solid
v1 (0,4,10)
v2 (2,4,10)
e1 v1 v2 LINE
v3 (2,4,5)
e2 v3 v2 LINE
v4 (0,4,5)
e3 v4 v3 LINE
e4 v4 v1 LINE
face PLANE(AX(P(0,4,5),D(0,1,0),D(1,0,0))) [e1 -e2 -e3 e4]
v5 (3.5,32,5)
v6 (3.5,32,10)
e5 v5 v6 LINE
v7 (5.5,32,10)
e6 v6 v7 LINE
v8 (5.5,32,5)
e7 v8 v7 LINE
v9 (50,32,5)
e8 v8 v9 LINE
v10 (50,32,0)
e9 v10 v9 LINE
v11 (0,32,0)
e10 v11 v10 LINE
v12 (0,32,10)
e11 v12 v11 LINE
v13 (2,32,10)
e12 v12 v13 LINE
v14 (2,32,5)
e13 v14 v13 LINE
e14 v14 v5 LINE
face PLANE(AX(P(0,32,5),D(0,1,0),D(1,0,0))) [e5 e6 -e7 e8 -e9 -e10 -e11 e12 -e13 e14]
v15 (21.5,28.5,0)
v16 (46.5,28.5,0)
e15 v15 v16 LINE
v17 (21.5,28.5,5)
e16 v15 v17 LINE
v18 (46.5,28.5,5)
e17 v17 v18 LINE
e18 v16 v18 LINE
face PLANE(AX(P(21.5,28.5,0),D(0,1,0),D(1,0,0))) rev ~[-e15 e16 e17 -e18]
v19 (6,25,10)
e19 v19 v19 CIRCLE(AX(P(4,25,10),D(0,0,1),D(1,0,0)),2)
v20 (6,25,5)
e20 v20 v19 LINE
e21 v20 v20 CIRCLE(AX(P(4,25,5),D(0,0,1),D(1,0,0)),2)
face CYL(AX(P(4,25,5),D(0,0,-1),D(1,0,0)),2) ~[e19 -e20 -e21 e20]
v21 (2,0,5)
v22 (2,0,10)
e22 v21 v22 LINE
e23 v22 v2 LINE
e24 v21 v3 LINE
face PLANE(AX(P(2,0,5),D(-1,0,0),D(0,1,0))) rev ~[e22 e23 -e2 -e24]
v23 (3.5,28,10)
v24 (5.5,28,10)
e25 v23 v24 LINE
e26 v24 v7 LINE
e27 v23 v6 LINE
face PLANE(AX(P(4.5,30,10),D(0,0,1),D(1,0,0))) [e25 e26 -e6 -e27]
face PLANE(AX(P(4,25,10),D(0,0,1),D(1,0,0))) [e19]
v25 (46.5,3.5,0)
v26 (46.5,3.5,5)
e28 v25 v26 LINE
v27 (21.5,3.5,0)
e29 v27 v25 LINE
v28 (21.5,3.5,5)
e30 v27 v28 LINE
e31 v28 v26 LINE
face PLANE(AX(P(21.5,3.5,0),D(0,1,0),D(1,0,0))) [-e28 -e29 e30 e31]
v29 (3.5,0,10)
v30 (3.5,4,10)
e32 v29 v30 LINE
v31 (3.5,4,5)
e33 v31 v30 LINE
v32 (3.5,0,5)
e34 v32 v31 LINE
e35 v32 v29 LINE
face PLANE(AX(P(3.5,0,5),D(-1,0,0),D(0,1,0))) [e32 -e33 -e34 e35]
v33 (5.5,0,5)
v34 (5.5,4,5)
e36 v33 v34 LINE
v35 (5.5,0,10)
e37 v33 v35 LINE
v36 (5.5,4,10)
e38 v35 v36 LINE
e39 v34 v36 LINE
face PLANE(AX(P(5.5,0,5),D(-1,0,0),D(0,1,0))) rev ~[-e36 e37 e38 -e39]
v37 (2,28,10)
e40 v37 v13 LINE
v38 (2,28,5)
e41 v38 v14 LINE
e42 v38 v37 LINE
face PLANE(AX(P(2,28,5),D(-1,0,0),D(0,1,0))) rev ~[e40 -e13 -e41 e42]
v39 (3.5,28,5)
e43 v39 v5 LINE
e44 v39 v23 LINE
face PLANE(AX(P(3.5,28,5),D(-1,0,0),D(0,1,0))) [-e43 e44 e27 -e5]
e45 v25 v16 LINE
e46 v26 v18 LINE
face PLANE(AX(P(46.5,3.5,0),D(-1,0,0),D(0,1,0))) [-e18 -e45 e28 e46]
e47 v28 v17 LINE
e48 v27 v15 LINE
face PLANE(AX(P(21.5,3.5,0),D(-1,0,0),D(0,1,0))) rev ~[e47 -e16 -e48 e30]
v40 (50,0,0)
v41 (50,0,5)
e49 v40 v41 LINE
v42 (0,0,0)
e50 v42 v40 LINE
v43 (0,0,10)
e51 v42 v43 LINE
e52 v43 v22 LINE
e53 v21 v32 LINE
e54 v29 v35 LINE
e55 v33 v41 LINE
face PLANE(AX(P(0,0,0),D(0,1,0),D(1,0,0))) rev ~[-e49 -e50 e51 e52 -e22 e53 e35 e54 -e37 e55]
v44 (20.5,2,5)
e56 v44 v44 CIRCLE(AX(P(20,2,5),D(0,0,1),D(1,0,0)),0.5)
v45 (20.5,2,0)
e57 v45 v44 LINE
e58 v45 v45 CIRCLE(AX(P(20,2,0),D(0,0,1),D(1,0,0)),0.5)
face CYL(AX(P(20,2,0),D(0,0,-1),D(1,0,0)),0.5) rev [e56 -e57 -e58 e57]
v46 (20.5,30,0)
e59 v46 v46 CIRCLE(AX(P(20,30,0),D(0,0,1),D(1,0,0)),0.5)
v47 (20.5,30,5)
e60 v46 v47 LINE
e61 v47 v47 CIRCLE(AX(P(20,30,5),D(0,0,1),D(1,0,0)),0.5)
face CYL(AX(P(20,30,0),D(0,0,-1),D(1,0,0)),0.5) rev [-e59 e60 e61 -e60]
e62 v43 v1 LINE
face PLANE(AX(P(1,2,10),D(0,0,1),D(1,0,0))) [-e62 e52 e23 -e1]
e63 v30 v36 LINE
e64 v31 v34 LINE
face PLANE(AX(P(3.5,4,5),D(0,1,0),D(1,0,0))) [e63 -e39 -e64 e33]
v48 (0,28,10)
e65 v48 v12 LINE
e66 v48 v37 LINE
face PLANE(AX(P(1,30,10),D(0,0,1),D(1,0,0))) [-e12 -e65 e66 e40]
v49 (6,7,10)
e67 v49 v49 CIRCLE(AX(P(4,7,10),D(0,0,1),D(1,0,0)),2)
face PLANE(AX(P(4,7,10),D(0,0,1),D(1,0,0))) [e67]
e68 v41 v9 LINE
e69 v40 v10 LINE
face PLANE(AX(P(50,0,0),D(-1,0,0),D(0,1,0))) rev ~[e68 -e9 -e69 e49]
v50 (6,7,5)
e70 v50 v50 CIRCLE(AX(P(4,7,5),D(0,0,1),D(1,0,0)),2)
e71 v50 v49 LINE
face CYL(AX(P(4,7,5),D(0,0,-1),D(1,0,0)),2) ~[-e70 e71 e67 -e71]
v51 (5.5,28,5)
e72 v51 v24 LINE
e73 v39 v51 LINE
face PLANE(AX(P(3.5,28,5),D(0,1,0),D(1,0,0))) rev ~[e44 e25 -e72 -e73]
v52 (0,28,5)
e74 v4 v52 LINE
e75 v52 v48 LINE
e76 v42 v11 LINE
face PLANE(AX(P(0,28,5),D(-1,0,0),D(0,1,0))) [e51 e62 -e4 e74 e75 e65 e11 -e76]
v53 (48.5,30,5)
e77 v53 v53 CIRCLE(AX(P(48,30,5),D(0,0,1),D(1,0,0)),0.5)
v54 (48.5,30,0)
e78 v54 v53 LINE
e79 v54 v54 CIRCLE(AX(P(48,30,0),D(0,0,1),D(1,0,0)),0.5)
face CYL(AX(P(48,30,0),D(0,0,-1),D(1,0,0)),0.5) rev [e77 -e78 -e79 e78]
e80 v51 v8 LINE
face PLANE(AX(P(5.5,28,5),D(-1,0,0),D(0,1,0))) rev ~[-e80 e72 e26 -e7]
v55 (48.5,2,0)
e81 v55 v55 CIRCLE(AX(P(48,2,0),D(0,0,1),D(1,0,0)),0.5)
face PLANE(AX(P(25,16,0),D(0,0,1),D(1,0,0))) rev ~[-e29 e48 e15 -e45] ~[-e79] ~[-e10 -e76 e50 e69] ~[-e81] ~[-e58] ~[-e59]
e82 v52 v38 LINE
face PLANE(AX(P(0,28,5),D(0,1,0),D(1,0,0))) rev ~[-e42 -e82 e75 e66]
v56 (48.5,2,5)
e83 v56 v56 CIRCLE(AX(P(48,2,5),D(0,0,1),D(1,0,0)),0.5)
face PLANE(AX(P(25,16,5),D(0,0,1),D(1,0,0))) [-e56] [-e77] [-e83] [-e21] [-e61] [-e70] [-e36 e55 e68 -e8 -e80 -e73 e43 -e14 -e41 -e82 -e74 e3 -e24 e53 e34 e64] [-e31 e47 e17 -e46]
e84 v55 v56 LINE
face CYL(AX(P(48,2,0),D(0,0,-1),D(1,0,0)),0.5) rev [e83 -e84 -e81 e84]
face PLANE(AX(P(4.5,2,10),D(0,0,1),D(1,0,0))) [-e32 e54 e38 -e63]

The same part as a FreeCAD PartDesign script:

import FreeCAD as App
import Part
import Sketcher
Q = App.Units.Quantity


def add_polygon(sketch, points):
    """Adds a closed chain of lines whose ends are joined by coincident constraints."""
    first, n = sketch.GeometryCount, len(points)
    for a, b in zip(points, points[1:] + points[:1]):
        sketch.addGeometry(Part.LineSegment(App.Vector(*a, 0), App.Vector(*b, 0)), False)
    for i in range(n):
        sketch.addConstraint(Sketcher.Constraint("Coincident", first + i, 2, first + (i + 1) % n, 1))

doc = App.newDocument("Part")
body = doc.addObject("PartDesign::Body", "Body")

# Sketch on XY plane
sketch1 = doc.addObject("Sketcher::SketchObject", "Sketch")
body.addObject(sketch1)
sketch1.AttachmentSupport = (doc.XY_Plane, [""])
sketch1.MapMode = "FlatFace"
add_polygon(sketch1, [(0, 32), (0, 0), (50, 0), (50, 32)])  # lines 0-3
sketch1.addGeometry(Part.Circle(App.Vector(20, 2, 0), App.Vector(0, 0, 1), 0.5), False)  # 4
sketch1.addGeometry(Part.Circle(App.Vector(48, 2, 0), App.Vector(0, 0, 1), 0.5), False)  # 5
sketch1.addGeometry(Part.Circle(App.Vector(20, 30, 0), App.Vector(0, 0, 1), 0.5), False)  # 6
add_polygon(sketch1, [(46.5, 3.5), (21.5, 3.5), (21.5, 28.5), (46.5, 28.5)])  # lines 7-10
sketch1.addGeometry(Part.Circle(App.Vector(48, 30, 0), App.Vector(0, 0, 1), 0.5), False)  # 11
sketch1.addConstraint([
    Sketcher.Constraint("Vertical", 0),
    Sketcher.Constraint("Horizontal", 1),
    Sketcher.Constraint("Vertical", 2),
    Sketcher.Constraint("Horizontal", 3),
    Sketcher.Constraint("Horizontal", 7),
    Sketcher.Constraint("Vertical", 8),
    Sketcher.Constraint("Horizontal", 9),
    Sketcher.Constraint("Vertical", 10),
    Sketcher.Constraint("Coincident", 0, 2, -1, 1),
    Sketcher.Constraint("Equal", 4, 5),
    Sketcher.Constraint("Equal", 5, 6),
    Sketcher.Constraint("Equal", 6, 11),
    Sketcher.Constraint("Horizontal", 4, 3, 5, 3),
    Sketcher.Constraint("Horizontal", 6, 3, 11, 3),
    Sketcher.Constraint("Vertical", 4, 3, 6, 3),
    Sketcher.Constraint("Vertical", 5, 3, 11, 3),
    Sketcher.Constraint("Equal", 9, 8),
    Sketcher.Constraint("Diameter", 4, Q("1 mm")),
    Sketcher.Constraint("DistanceX", 1, 1, 1, 2, Q("50 mm")),
    Sketcher.Constraint("DistanceX", 7, 2, 7, 1, Q("25 mm")),
    Sketcher.Constraint("DistanceY", 0, 2, 0, 1, Q("32 mm")),
    Sketcher.Constraint("DistanceX", -1, 1, 4, 3, Q("20 mm")),
    Sketcher.Constraint("DistanceY", -1, 1, 4, 3, Q("2 mm")),
    Sketcher.Constraint("DistanceX", -1, 1, 5, 3, Q("48 mm")),
    Sketcher.Constraint("DistanceY", -1, 1, 6, 3, Q("30 mm")),
    Sketcher.Constraint("DistanceX", -1, 1, 7, 2, Q("21.5 mm")),
    Sketcher.Constraint("DistanceY", -1, 1, 7, 2, Q("3.5 mm")),
])
pad1 = doc.addObject("PartDesign::Pad", "Pad")
body.addObject(pad1)
pad1.Profile = sketch1
pad1.Length = 5

# Sketch on XY plane
sketch2 = doc.addObject("Sketcher::SketchObject", "Sketch001")
body.addObject(sketch2)
sketch2.AttachmentSupport = (doc.XY_Plane, [""])
sketch2.MapMode = "FlatFace"
sketch2.AttachmentOffset = App.Placement(App.Vector(0, 0, 5), App.Rotation())
add_polygon(sketch2, [(0, 32), (0, 28), (2, 28), (2, 32)])  # lines 0-3
add_polygon(sketch2, [(3.5, 32), (3.5, 28), (5.5, 28), (5.5, 32)])  # lines 4-7
sketch2.addGeometry(Part.Circle(App.Vector(4, 25, 0), App.Vector(0, 0, 1), 2), False)  # 8
add_polygon(sketch2, [(0, 4), (0, 0), (2, 0), (2, 4)])  # lines 9-12
add_polygon(sketch2, [(3.5, 4), (3.5, 0), (5.5, 0), (5.5, 4)])  # lines 13-16
sketch2.addGeometry(Part.Circle(App.Vector(4, 7, 0), App.Vector(0, 0, 1), 2), False)  # 17
sketch2.addConstraint([
    Sketcher.Constraint("Vertical", 0),
    Sketcher.Constraint("Horizontal", 1),
    Sketcher.Constraint("Vertical", 2),
    Sketcher.Constraint("Horizontal", 3),
    Sketcher.Constraint("Vertical", 4),
    Sketcher.Constraint("Horizontal", 5),
    Sketcher.Constraint("Vertical", 6),
    Sketcher.Constraint("Horizontal", 7),
    Sketcher.Constraint("Vertical", 9),
    Sketcher.Constraint("Horizontal", 10),
    Sketcher.Constraint("Vertical", 11),
    Sketcher.Constraint("Horizontal", 12),
    Sketcher.Constraint("Vertical", 13),
    Sketcher.Constraint("Horizontal", 14),
    Sketcher.Constraint("Vertical", 15),
    Sketcher.Constraint("Horizontal", 16),
    Sketcher.Constraint("Coincident", 9, 2, -1, 1),
    Sketcher.Constraint("Equal", 8, 17),
    Sketcher.Constraint("PointOnObject", 0, 2, -2),
    Sketcher.Constraint("PointOnObject", 13, 2, -1),
    Sketcher.Constraint("Horizontal", 1, 2, 4, 2),
    Sketcher.Constraint("Horizontal", 3, 2, 6, 2),
    Sketcher.Constraint("Horizontal", 12, 2, 15, 2),
    Sketcher.Constraint("Vertical", 8, 3, 17, 3),
    Sketcher.Constraint("Vertical", 2, 2, 10, 2),
    Sketcher.Constraint("Vertical", 7, 2, 13, 2),
    Sketcher.Constraint("Vertical", 6, 2, 14, 2),
    Sketcher.Constraint("Equal", 3, 5),
    Sketcher.Constraint("Equal", 6, 9),
    Sketcher.Constraint("Diameter", 8, Q("4 mm")),
    Sketcher.Constraint("DistanceX", 1, 1, 1, 2, Q("2 mm")),
    Sketcher.Constraint("DistanceY", 0, 2, 0, 1, Q("4 mm")),
    Sketcher.Constraint("DistanceX", -1, 1, 8, 3, Q("4 mm")),
    Sketcher.Constraint("DistanceY", -1, 1, 8, 3, Q("25 mm")),
    Sketcher.Constraint("DistanceY", -1, 1, 17, 3, Q("7 mm")),
    Sketcher.Constraint("DistanceY", -1, 1, 0, 2, Q("28 mm")),
    Sketcher.Constraint("DistanceX", -1, 1, 4, 2, Q("3.5 mm")),
])
pad2 = doc.addObject("PartDesign::Pad", "Pad001")
body.addObject(pad2)
pad2.Profile = sketch2
pad2.Length = 5

doc.recompute()
